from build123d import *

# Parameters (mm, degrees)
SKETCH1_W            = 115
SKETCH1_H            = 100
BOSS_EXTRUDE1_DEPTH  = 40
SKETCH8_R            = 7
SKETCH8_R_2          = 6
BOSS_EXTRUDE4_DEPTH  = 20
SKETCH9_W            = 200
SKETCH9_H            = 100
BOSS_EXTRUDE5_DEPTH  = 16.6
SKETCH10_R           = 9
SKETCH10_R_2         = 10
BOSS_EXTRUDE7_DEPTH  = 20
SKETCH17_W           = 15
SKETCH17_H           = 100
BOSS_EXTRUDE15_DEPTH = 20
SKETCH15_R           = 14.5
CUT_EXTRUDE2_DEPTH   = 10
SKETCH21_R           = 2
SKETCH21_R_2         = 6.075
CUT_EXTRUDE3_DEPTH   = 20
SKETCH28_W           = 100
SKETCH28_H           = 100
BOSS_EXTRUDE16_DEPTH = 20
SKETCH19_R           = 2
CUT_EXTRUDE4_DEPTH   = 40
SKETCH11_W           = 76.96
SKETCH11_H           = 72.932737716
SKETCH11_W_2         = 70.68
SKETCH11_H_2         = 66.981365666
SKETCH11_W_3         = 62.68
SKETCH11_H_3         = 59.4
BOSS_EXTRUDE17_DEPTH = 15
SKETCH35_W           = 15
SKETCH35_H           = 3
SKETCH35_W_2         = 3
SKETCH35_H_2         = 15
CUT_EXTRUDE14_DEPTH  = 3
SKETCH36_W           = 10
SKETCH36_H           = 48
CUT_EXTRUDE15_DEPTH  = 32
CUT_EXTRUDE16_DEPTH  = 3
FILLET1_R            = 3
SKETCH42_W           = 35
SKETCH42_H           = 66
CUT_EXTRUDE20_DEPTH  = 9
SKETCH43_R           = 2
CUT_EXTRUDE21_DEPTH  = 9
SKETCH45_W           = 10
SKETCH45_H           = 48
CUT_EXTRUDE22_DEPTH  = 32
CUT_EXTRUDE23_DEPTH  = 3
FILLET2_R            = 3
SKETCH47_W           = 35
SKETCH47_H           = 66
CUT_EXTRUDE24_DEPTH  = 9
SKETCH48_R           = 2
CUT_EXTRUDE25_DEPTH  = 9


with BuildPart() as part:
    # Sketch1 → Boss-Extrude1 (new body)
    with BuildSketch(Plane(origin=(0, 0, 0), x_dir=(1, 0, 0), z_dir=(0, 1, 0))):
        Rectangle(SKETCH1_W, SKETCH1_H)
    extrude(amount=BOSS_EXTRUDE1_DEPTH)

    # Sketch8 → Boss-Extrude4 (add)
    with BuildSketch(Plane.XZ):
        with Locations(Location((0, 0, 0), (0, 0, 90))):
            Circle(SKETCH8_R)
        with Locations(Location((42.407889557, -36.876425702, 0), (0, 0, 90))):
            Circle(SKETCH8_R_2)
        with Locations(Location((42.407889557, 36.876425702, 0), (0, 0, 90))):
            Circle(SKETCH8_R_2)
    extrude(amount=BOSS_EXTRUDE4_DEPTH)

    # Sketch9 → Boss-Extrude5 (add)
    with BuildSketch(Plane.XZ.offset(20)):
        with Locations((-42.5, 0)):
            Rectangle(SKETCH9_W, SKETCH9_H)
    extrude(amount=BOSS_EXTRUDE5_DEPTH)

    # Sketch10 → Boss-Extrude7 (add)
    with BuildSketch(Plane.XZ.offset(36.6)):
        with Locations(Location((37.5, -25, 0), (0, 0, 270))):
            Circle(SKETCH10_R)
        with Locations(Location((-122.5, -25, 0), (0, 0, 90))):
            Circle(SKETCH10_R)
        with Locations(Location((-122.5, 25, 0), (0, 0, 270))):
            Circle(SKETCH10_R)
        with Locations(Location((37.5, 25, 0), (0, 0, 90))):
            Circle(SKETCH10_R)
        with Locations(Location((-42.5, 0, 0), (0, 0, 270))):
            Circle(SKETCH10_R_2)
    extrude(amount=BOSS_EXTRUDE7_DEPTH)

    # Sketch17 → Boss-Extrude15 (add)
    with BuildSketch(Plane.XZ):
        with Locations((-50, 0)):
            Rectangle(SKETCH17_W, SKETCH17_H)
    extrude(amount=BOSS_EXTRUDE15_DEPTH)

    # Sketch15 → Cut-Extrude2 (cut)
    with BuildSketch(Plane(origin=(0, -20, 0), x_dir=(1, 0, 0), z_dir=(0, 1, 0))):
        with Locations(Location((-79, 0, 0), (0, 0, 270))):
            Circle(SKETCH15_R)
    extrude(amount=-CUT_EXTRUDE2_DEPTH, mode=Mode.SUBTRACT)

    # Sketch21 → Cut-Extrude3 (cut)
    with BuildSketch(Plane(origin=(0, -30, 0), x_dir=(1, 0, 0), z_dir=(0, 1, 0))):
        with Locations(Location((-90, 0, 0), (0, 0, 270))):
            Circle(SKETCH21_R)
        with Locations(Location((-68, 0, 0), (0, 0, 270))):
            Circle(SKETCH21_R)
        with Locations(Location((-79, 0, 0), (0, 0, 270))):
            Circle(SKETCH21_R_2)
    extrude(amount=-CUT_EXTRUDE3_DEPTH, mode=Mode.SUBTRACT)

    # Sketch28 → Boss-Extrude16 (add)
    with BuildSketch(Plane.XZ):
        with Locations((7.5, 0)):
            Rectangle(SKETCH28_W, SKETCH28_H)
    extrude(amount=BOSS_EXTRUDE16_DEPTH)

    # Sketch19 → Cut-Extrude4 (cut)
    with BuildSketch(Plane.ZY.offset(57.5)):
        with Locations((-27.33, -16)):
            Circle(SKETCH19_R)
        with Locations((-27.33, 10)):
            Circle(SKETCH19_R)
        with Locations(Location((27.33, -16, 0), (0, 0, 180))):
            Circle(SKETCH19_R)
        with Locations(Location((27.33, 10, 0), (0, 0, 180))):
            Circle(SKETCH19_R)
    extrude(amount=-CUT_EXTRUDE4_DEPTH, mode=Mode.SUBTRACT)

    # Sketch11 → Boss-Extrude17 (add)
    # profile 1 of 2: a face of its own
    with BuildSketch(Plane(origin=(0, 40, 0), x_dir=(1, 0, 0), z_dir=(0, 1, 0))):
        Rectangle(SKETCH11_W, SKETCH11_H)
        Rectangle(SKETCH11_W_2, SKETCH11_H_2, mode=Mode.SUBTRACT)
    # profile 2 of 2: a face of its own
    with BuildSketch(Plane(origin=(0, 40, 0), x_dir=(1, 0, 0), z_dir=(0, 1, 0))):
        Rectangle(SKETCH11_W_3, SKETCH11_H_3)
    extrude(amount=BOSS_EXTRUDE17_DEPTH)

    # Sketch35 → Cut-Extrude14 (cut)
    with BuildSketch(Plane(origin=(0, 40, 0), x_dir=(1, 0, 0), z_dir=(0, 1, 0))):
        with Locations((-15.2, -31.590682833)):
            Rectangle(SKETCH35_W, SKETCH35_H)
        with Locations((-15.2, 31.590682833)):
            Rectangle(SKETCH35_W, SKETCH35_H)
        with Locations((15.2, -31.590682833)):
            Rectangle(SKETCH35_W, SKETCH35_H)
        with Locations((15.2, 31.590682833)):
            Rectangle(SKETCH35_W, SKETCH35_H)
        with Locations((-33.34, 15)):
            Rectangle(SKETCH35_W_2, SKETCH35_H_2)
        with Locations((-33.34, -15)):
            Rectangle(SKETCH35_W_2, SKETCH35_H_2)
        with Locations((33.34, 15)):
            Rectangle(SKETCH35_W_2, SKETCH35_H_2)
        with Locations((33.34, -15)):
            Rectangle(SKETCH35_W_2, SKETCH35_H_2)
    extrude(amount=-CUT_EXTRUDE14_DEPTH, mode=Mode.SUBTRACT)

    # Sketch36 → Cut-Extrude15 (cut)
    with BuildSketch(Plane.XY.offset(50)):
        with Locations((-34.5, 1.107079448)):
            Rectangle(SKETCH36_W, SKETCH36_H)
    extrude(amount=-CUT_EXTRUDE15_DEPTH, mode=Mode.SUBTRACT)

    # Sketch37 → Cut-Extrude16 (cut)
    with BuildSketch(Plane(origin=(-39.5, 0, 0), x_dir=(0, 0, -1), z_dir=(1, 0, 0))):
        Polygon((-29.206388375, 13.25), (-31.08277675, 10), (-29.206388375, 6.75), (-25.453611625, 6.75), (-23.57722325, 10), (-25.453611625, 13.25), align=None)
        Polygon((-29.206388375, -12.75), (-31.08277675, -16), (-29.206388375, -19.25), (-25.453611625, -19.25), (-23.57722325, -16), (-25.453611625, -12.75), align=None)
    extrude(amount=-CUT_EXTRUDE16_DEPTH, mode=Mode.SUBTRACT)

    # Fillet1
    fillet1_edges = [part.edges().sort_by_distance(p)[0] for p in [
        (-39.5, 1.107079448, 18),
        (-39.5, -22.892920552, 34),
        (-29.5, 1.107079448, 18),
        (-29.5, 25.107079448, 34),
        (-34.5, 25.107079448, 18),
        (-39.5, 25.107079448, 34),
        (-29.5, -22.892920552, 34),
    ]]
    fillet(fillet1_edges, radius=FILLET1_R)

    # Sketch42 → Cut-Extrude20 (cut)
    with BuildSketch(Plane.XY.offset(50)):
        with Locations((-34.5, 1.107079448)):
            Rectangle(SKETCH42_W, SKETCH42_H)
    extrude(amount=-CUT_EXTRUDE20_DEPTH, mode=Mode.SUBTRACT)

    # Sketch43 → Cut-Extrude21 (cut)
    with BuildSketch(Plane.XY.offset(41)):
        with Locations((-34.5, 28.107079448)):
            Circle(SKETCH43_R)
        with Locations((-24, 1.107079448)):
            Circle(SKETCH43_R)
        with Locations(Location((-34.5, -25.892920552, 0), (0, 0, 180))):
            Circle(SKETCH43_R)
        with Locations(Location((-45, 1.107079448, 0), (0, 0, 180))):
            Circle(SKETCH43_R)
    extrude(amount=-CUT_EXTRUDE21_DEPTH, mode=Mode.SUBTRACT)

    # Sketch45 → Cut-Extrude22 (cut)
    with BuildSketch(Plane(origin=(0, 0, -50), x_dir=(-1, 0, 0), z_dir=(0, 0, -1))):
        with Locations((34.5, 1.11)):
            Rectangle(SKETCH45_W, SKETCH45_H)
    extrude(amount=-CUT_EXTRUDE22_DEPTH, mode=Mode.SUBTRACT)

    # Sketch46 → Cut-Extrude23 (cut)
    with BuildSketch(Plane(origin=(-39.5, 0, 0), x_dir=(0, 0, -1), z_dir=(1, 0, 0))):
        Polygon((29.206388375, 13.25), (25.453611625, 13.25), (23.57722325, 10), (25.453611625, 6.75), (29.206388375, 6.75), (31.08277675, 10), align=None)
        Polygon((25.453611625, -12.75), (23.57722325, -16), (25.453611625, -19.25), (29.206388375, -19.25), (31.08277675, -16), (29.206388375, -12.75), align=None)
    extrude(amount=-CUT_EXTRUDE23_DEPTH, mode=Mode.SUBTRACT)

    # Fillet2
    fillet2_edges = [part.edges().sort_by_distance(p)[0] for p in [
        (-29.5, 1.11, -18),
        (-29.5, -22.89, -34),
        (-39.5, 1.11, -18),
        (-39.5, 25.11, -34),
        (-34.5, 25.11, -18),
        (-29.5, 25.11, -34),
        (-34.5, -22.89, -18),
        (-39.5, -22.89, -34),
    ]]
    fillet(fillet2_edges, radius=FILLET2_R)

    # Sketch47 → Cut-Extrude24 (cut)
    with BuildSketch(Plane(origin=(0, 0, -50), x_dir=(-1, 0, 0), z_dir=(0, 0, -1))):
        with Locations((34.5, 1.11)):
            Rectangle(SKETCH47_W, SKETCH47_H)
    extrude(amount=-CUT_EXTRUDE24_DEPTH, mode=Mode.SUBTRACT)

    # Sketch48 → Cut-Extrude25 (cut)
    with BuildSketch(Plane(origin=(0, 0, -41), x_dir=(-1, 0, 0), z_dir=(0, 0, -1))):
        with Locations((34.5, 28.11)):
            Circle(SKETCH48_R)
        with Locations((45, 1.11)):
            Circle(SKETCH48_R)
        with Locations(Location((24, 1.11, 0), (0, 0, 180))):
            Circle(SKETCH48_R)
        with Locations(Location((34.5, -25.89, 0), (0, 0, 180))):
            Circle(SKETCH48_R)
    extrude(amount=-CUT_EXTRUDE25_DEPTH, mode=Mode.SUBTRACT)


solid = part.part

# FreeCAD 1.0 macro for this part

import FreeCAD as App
import Part
import Sketcher
Q = App.Units.Quantity


def edges_at(feature, points):
    """Names of the edges that pass closest to the given points."""
    edges = feature.Shape.Edges
    near = lambda p: min(range(len(edges)), key=lambda i: edges[i].distToShape(Part.Vertex(*p))[0])
    return sorted({f"Edge{near(p) + 1}" for p in points})


def add_polygon(sketch, points):
    """Adds a closed chain of lines whose ends are joined by coincident constraints."""
    first, n = sketch.GeometryCount, len(points)
    for a, b in zip(points, points[1:] + points[:1]):
        sketch.addGeometry(Part.LineSegment(App.Vector(*a, 0), App.Vector(*b, 0)), False)
    for i in range(n):
        sketch.addConstraint(Sketcher.Constraint("Coincident", first + i, 2, first + (i + 1) % n, 1))

doc = App.newDocument("Part")
params = doc.addObject("Spreadsheet::Sheet", "Params")
for row, (alias, value) in enumerate([
    ("sketch1_width", "115 mm"),
    ("sketch1_height", "100 mm"),
    ("pad1_length", "40 mm"),
    ("sketch2_diameter", "14 mm"),
    ("sketch2_diameter2", "12 mm"),
    ("pad2_length", "20 mm"),
    ("sketch3_width", "200 mm"),
    ("sketch3_height", "100 mm"),
    ("pad3_length", "16.6 mm"),
    ("sketch4_diameter", "18 mm"),
    ("sketch4_diameter2", "20 mm"),
    ("pad4_length", "20 mm"),
    ("sketch5_width", "15 mm"),
    ("sketch5_height", "100 mm"),
    ("pad5_length", "20 mm"),
    ("sketch6_diameter", "29 mm"),
    ("pocket1_length", "10 mm"),
    ("sketch7_diameter", "4 mm"),
    ("sketch7_diameter2", "12.15 mm"),
    ("pocket2_length", "20 mm"),
    ("sketch8_width", "100 mm"),
    ("pad6_length", "20 mm"),
    ("sketch9_diameter", "4 mm"),
    ("pocket3_length", "40 mm"),
    ("sketch10_height", "59.4 mm"),
    ("sketch10_width", "76.96 mm"),
    ("sketch10_width2", "70.68 mm"),
    ("pad7_length", "15 mm"),
    ("sketch11_width", "15 mm"),
    ("sketch11_width2", "3 mm"),
    ("pocket4_length", "3 mm"),
    ("sketch12_width", "10 mm"),
    ("sketch12_height", "48 mm"),
    ("pocket5_length", "32 mm"),
    ("pocket6_length", "3 mm"),
    ("fillet_radius", "3 mm"),
    ("sketch14_width", "35 mm"),
    ("sketch14_height", "66 mm"),
    ("pocket7_length", "9 mm"),
    ("sketch15_diameter", "4 mm"),
    ("pocket8_length", "9 mm"),
    ("sketch16_width", "10 mm"),
    ("sketch16_height", "48 mm"),
    ("pocket9_length", "32 mm"),
    ("pocket10_length", "3 mm"),
    ("fillet2_radius", "3 mm"),
    ("sketch18_width", "35 mm"),
    ("sketch18_height", "66 mm"),
    ("pocket11_length", "9 mm"),
    ("sketch19_diameter", "4 mm"),
    ("pocket12_length", "9 mm"),
], start=1):
    params.set(f"A{row}", alias)
    params.set(f"B{row}", "=" + value)
    params.setAlias(f"B{row}", alias)

body = doc.addObject("PartDesign::Body", "Body")

# Sketch on XZ plane
sketch1 = doc.addObject("Sketcher::SketchObject", "Sketch")
body.addObject(sketch1)
sketch1.AttachmentSupport = (doc.XZ_Plane, [""])
sketch1.MapMode = "FlatFace"
add_polygon(sketch1, [(-58, -50), (-58, 50), (58, 50), (58, -50)])  # lines 0-3
sketch1.addConstraint([
    Sketcher.Constraint("Vertical", 0),
    Sketcher.Constraint("Horizontal", 1),
    Sketcher.Constraint("Vertical", 2),
    Sketcher.Constraint("Horizontal", 3),
    Sketcher.Constraint("Symmetric", 0, 2, 2, 2, -1, 1),
    Sketcher.Constraint("DistanceX", 1, 1, 1, 2, 115.0),
    Sketcher.Constraint("DistanceY", 0, 1, 0, 2, 100.0),
])
sketch1.setExpression("Constraints[9]", "Params.sketch1_width")
sketch1.setExpression("Constraints[10]", "Params.sketch1_height")
pad1 = doc.addObject("PartDesign::Pad", "Pad")
body.addObject(pad1)
pad1.Profile = sketch1
pad1.setExpression("Length", "Params.pad1_length")
pad1.Reversed = True

# Sketch on XZ plane
sketch2 = doc.addObject("Sketcher::SketchObject", "Sketch001")
body.addObject(sketch2)
sketch2.AttachmentSupport = (doc.XZ_Plane, [""])
sketch2.MapMode = "FlatFace"
sketch2.addGeometry([
    Part.Circle(App.Vector(0, 0, 0), App.Vector(0, 0, 1), 7),
    Part.Circle(App.Vector(42, -37, 0), App.Vector(0, 0, 1), 6),
    Part.Circle(App.Vector(42, 37, 0), App.Vector(0, 0, 1), 6),
], False)
sketch2.addConstraint([
    Sketcher.Constraint("Coincident", 0, 3, -1, 1),
    Sketcher.Constraint("Equal", 1, 2),
    Sketcher.Constraint("Symmetric", 1, 3, 2, 3, -1),
    Sketcher.Constraint("Diameter", 0, 14.0),
    Sketcher.Constraint("Diameter", 1, 12.0),
    Sketcher.Constraint("DistanceX", -1, 1, 1, 3, 42.40789),
    Sketcher.Constraint("DistanceY", 1, 3, 2, 3, 73.752851),
])
sketch2.setExpression("Constraints[3]", "Params.sketch2_diameter")
sketch2.setExpression("Constraints[4]", "Params.sketch2_diameter2")
pad2 = doc.addObject("PartDesign::Pad", "Pad001")
body.addObject(pad2)
pad2.Profile = sketch2
pad2.setExpression("Length", "Params.pad2_length")

# Sketch on XZ plane
sketch3 = doc.addObject("Sketcher::SketchObject", "Sketch002")
body.addObject(sketch3)
sketch3.AttachmentSupport = (doc.XZ_Plane, [""])
sketch3.MapMode = "FlatFace"
sketch3.AttachmentOffset = App.Placement(App.Vector(0, 0, 20), App.Rotation())
add_polygon(sketch3, [(-142, 50), (-142, -50), (58, -50), (58, 50)])  # lines 0-3
sketch3.addConstraint([
    Sketcher.Constraint("Vertical", 0),
    Sketcher.Constraint("Horizontal", 1),
    Sketcher.Constraint("Vertical", 2),
    Sketcher.Constraint("Horizontal", 3),
    Sketcher.Constraint("DistanceX", 1, 1, 1, 2, 200.0),
    Sketcher.Constraint("DistanceY", 0, 2, 0, 1, 100.0),
    Sketcher.Constraint("DistanceY", 0, 2, -1, 1, 50.0),
    Sketcher.Constraint("DistanceX", 0, 2, -1, 1, 142.5),
])
sketch3.setExpression("Constraints[8]", "Params.sketch3_width")
sketch3.setExpression("Constraints[9]", "Params.sketch3_height")
pad3 = doc.addObject("PartDesign::Pad", "Pad002")
body.addObject(pad3)
pad3.Profile = sketch3
pad3.setExpression("Length", "Params.pad3_length")

# Sketch on XZ plane
sketch4 = doc.addObject("Sketcher::SketchObject", "Sketch003")
body.addObject(sketch4)
sketch4.AttachmentSupport = (doc.XZ_Plane, [""])
sketch4.MapMode = "FlatFace"
sketch4.AttachmentOffset = App.Placement(App.Vector(0, 0, 36.6), App.Rotation())
sketch4.addGeometry([
    Part.Circle(App.Vector(38, -25, 0), App.Vector(0, 0, 1), 9),  # 0
    Part.Circle(App.Vector(-122, -25, 0), App.Vector(0, 0, 1), 9),  # 1
    Part.Circle(App.Vector(-122, 25, 0), App.Vector(0, 0, 1), 9),  # 2
    Part.Circle(App.Vector(38, 25, 0), App.Vector(0, 0, 1), 9),  # 3
    Part.Circle(App.Vector(-42, 0, 0), App.Vector(0, 0, 1), 10),  # 4
], False)
sketch4.addConstraint([
    Sketcher.Constraint("Equal", 0, 1),
    Sketcher.Constraint("Equal", 1, 2),
    Sketcher.Constraint("Equal", 2, 3),
    Sketcher.Constraint("Symmetric", 1, 3, 2, 3, -1),
    Sketcher.Constraint("Symmetric", 0, 3, 3, 3, -1),
    Sketcher.Constraint("PointOnObject", 4, 3, -1),
    Sketcher.Constraint("Horizontal", 0, 3, 1, 3),
    Sketcher.Constraint("Diameter", 0, 18.0),
    Sketcher.Constraint("Diameter", 4, 20.0),
    Sketcher.Constraint("DistanceY", 0, 3, -1, 1, 25.0),
    Sketcher.Constraint("DistanceX", 1, 3, 0, 3, 160.0),
    Sketcher.Constraint("DistanceX", 4, 3, 0, 3, 80.0),
    Sketcher.Constraint("DistanceX", -1, 1, 0, 3, 37.5),
])
sketch4.setExpression("Constraints[7]", "Params.sketch4_diameter")
sketch4.setExpression("Constraints[8]", "Params.sketch4_diameter2")
pad4 = doc.addObject("PartDesign::Pad", "Pad003")
body.addObject(pad4)
pad4.Profile = sketch4
pad4.setExpression("Length", "Params.pad4_length")

# Sketch on XZ plane
sketch5 = doc.addObject("Sketcher::SketchObject", "Sketch004")
body.addObject(sketch5)
sketch5.AttachmentSupport = (doc.XZ_Plane, [""])
sketch5.MapMode = "FlatFace"
add_polygon(sketch5, [(-58, 50), (-58, -50), (-42, -50), (-42, 50)])  # lines 0-3
sketch5.addConstraint([
    Sketcher.Constraint("Vertical", 0),
    Sketcher.Constraint("Horizontal", 1),
    Sketcher.Constraint("Vertical", 2),
    Sketcher.Constraint("Horizontal", 3),
    Sketcher.Constraint("DistanceX", 1, 1, 1, 2, 15.0),
    Sketcher.Constraint("DistanceY", 0, 2, 0, 1, 100.0),
    Sketcher.Constraint("DistanceY", 0, 2, -1, 1, 50.0),
    Sketcher.Constraint("DistanceX", 0, 2, -1, 1, 57.5),
])
sketch5.setExpression("Constraints[8]", "Params.sketch5_width")
sketch5.setExpression("Constraints[9]", "Params.sketch5_height")
pad5 = doc.addObject("PartDesign::Pad", "Pad004")
body.addObject(pad5)
pad5.Profile = sketch5
pad5.setExpression("Length", "Params.pad5_length")

# Sketch on XZ plane
sketch6 = doc.addObject("Sketcher::SketchObject", "Sketch005")
body.addObject(sketch6)
sketch6.AttachmentSupport = (doc.XZ_Plane, [""])
sketch6.MapMode = "FlatFace"
sketch6.AttachmentOffset = App.Placement(App.Vector(0, 0, 20), App.Rotation())
sketch6.addGeometry(Part.Circle(App.Vector(-79, 0, 0), App.Vector(0, 0, 1), 14), False)
sketch6.addConstraint([
    Sketcher.Constraint("PointOnObject", 0, 3, -1),
    Sketcher.Constraint("Diameter", 0, 29.0),
    Sketcher.Constraint("DistanceX", 0, 3, -1, 1, 79.0),
])
sketch6.setExpression("Constraints[1]", "Params.sketch6_diameter")
pocket1 = doc.addObject("PartDesign::Pocket", "Pocket")
body.addObject(pocket1)
pocket1.Profile = sketch6
pocket1.setExpression("Length", "Params.pocket1_length")
pocket1.Reversed = True

# Sketch on XZ plane
sketch7 = doc.addObject("Sketcher::SketchObject", "Sketch006")
body.addObject(sketch7)
sketch7.AttachmentSupport = (doc.XZ_Plane, [""])
sketch7.MapMode = "FlatFace"
sketch7.AttachmentOffset = App.Placement(App.Vector(0, 0, 30), App.Rotation())
sketch7.addGeometry([
    Part.Circle(App.Vector(-90, 0, 0), App.Vector(0, 0, 1), 2),
    Part.Circle(App.Vector(-68, 0, 0), App.Vector(0, 0, 1), 2),
    Part.Circle(App.Vector(-79, 0, 0), App.Vector(0, 0, 1), 6.1),
], False)
sketch7.addConstraint([
    Sketcher.Constraint("Equal", 0, 1),
    Sketcher.Constraint("PointOnObject", 0, 3, -1),
    Sketcher.Constraint("PointOnObject", 1, 3, -1),
    Sketcher.Constraint("PointOnObject", 2, 3, -1),
    Sketcher.Constraint("Diameter", 0, 4.0),
    Sketcher.Constraint("Diameter", 2, 12.15),
    Sketcher.Constraint("DistanceX", 0, 3, -1, 1, 90.0),
    Sketcher.Constraint("DistanceX", 1, 3, -1, 1, 68.0),
    Sketcher.Constraint("DistanceX", 2, 3, -1, 1, 79.0),
])
sketch7.setExpression("Constraints[4]", "Params.sketch7_diameter")
sketch7.setExpression("Constraints[5]", "Params.sketch7_diameter2")
pocket2 = doc.addObject("PartDesign::Pocket", "Pocket001")
body.addObject(pocket2)
pocket2.Profile = sketch7
pocket2.setExpression("Length", "Params.pocket2_length")
pocket2.Reversed = True

# Sketch on XZ plane
sketch8 = doc.addObject("Sketcher::SketchObject", "Sketch007")
body.addObject(sketch8)
sketch8.AttachmentSupport = (doc.XZ_Plane, [""])
sketch8.MapMode = "FlatFace"
add_polygon(sketch8, [(-42, 50), (-42, -50), (58, -50), (58, 50)])  # lines 0-3
sketch8.addConstraint([
    Sketcher.Constraint("Vertical", 0),
    Sketcher.Constraint("Horizontal", 1),
    Sketcher.Constraint("Vertical", 2),
    Sketcher.Constraint("Horizontal", 3),
    Sketcher.Constraint("Equal", 3, 0),
    Sketcher.Constraint("DistanceX", 1, 1, 1, 2, 100.0),
    Sketcher.Constraint("DistanceY", 0, 2, -1, 1, 50.0),
    Sketcher.Constraint("DistanceX", 0, 2, -1, 1, 42.5),
])
sketch8.setExpression("Constraints[9]", "Params.sketch8_width")
pad6 = doc.addObject("PartDesign::Pad", "Pad005")
body.addObject(pad6)
pad6.Profile = sketch8
pad6.setExpression("Length", "Params.pad6_length")

# Sketch on YZ plane
sketch9 = doc.addObject("Sketcher::SketchObject", "Sketch008")
body.addObject(sketch9)
sketch9.AttachmentSupport = (doc.YZ_Plane, [""])
sketch9.MapMode = "FlatFace"
sketch9.AttachmentOffset = App.Placement(App.Vector(0, 0, -57.5), App.Rotation())
sketch9.addGeometry([
    Part.Circle(App.Vector(-16, -27.3, 0), App.Vector(0, 0, 1), 2),
    Part.Circle(App.Vector(10, -27.3, 0), App.Vector(0, 0, 1), 2),
    Part.Circle(App.Vector(-16, 27.3, 0), App.Vector(0, 0, 1), 2),
    Part.Circle(App.Vector(10, 27.3, 0), App.Vector(0, 0, 1), 2),
], False)
sketch9.addConstraint([
    Sketcher.Constraint("Equal", 0, 1),
    Sketcher.Constraint("Equal", 1, 2),
    Sketcher.Constraint("Equal", 2, 3),
    Sketcher.Constraint("Symmetric", 0, 3, 2, 3, -1),
    Sketcher.Constraint("Symmetric", 1, 3, 3, 3, -1),
    Sketcher.Constraint("Horizontal", 0, 3, 1, 3),
    Sketcher.Constraint("Diameter", 0, 4.0),
    Sketcher.Constraint("DistanceX", 0, 3, -1, 1, 16.0),
    Sketcher.Constraint("DistanceX", -1, 1, 1, 3, 10.0),
    Sketcher.Constraint("DistanceY", 0, 3, -1, 1, 27.33),
])
sketch9.setExpression("Constraints[6]", "Params.sketch9_diameter")
pocket3 = doc.addObject("PartDesign::Pocket", "Pocket002")
body.addObject(pocket3)
pocket3.Profile = sketch9
pocket3.setExpression("Length", "Params.pocket3_length")
pocket3.Reversed = True

# Sketch on XZ plane
sketch10 = doc.addObject("Sketcher::SketchObject", "Sketch009")
body.addObject(sketch10)
sketch10.AttachmentSupport = (doc.XZ_Plane, [""])
sketch10.MapMode = "FlatFace"
sketch10.AttachmentOffset = App.Placement(App.Vector(0, 0, -40), App.Rotation())
add_polygon(sketch10, [(-38, -36), (-38, 36), (38, 36), (38, -36)])  # lines 0-3
add_polygon(sketch10, [(35, 33), (-35, 33), (-35, -33), (35, -33)])  # lines 4-7
add_polygon(sketch10, [(-31, -30), (-31, 30), (31, 30), (31, -30)])  # lines 8-11
sketch10.addConstraint([
    Sketcher.Constraint("Vertical", 0),
    Sketcher.Constraint("Horizontal", 1),
    Sketcher.Constraint("Vertical", 2),
    Sketcher.Constraint("Horizontal", 3),
    Sketcher.Constraint("Horizontal", 4),
    Sketcher.Constraint("Vertical", 5),
    Sketcher.Constraint("Horizontal", 6),
    Sketcher.Constraint("Vertical", 7),
    Sketcher.Constraint("Vertical", 8),
    Sketcher.Constraint("Horizontal", 9),
    Sketcher.Constraint("Vertical", 10),
    Sketcher.Constraint("Horizontal", 11),
    Sketcher.Constraint("Symmetric", 0, 2, 2, 2, -1, 1),
    Sketcher.Constraint("Symmetric", 4, 2, 6, 2, -1, 1),
    Sketcher.Constraint("Symmetric", 8, 2, 10, 2, -1, 1),
    Sketcher.Constraint("DistanceY", 8, 1, 8, 2, 59.4),
    Sketcher.Constraint("DistanceX", 4, 2, 8, 2, 4.0),
    Sketcher.Constraint("DistanceX", 1, 1, 1, 2, 76.96),
    Sketcher.Constraint("DistanceX", 4, 2, 4, 1, 70.68),
    Sketcher.Constraint("DistanceY", 0, 1, 0, 2, 72.932738),
    Sketcher.Constraint("DistanceY", 5, 2, 5, 1, 66.981366),
])
sketch10.setExpression("Constraints[27]", "Params.sketch10_height")
sketch10.setExpression("Constraints[29]", "Params.sketch10_width")
sketch10.setExpression("Constraints[30]", "Params.sketch10_width2")
pad7 = doc.addObject("PartDesign::Pad", "Pad006")
body.addObject(pad7)
pad7.Profile = sketch10
pad7.setExpression("Length", "Params.pad7_length")
pad7.Reversed = True

# Sketch on XZ plane
sketch11 = doc.addObject("Sketcher::SketchObject", "Sketch010")
body.addObject(sketch11)
sketch11.AttachmentSupport = (doc.XZ_Plane, [""])
sketch11.MapMode = "FlatFace"
sketch11.AttachmentOffset = App.Placement(App.Vector(0, 0, -40), App.Rotation())
add_polygon(sketch11, [(-22.7, 30.1), (-22.7, 33.1), (-7.7, 33.1), (-7.7, 30.1)])  # lines 0-3
add_polygon(sketch11, [(-22.7, -33.1), (-22.7, -30.1), (-7.7, -30.1), (-7.7, -33.1)])  # lines 4-7
add_polygon(sketch11, [(7.7, 30.1), (7.7, 33.1), (22.7, 33.1), (22.7, 30.1)])  # lines 8-11
add_polygon(sketch11, [(7.7, -33.1), (7.7, -30.1), (22.7, -30.1), (22.7, -33.1)])  # lines 12-15
add_polygon(sketch11, [(-34.8, -22.5), (-34.8, -7.5), (-31.8, -7.5), (-31.8, -22.5)])  # lines 16-19
add_polygon(sketch11, [(-34.8, 7.5), (-34.8, 22.5), (-31.8, 22.5), (-31.8, 7.5)])  # lines 20-23
add_polygon(sketch11, [(31.8, -22.5), (31.8, -7.5), (34.8, -7.5), (34.8, -22.5)])  # lines 24-27
add_polygon(sketch11, [(31.8, 7.5), (31.8, 22.5), (34.8, 22.5), (34.8, 7.5)])  # lines 28-31
sketch11.addConstraint([
    Sketcher.Constraint("Vertical", 0),
    Sketcher.Constraint("Horizontal", 1),
    Sketcher.Constraint("Vertical", 2),
    Sketcher.Constraint("Horizontal", 3),
    Sketcher.Constraint("Vertical", 4),
    Sketcher.Constraint("Horizontal", 5),
    Sketcher.Constraint("Vertical", 6),
    Sketcher.Constraint("Horizontal", 7),
    Sketcher.Constraint("Vertical", 8),
    Sketcher.Constraint("Horizontal", 9),
    Sketcher.Constraint("Vertical", 10),
    Sketcher.Constraint("Horizontal", 11),
    Sketcher.Constraint("Vertical", 12),
    Sketcher.Constraint("Horizontal", 13),
    Sketcher.Constraint("Vertical", 14),
    Sketcher.Constraint("Horizontal", 15),
    Sketcher.Constraint("Vertical", 16),
    Sketcher.Constraint("Horizontal", 17),
    Sketcher.Constraint("Vertical", 18),
    Sketcher.Constraint("Horizontal", 19),
    Sketcher.Constraint("Vertical", 20),
    Sketcher.Constraint("Horizontal", 21),
    Sketcher.Constraint("Vertical", 22),
    Sketcher.Constraint("Horizontal", 23),
    Sketcher.Constraint("Vertical", 24),
    Sketcher.Constraint("Horizontal", 25),
    Sketcher.Constraint("Vertical", 26),
    Sketcher.Constraint("Horizontal", 27),
    Sketcher.Constraint("Vertical", 28),
    Sketcher.Constraint("Horizontal", 29),
    Sketcher.Constraint("Vertical", 30),
    Sketcher.Constraint("Horizontal", 31),
    Sketcher.Constraint("Symmetric", 6, 2, 8, 2, -1, 1),
    Sketcher.Constraint("Symmetric", 4, 2, 10, 2, -1, 1),
    Sketcher.Constraint("Symmetric", 2, 2, 12, 2, -1, 1),
    Sketcher.Constraint("Symmetric", 0, 2, 14, 2, -1, 1),
    Sketcher.Constraint("Symmetric", 22, 2, 24, 2, -1, 1),
    Sketcher.Constraint("Symmetric", 20, 2, 26, 2, -1, 1),
    Sketcher.Constraint("Symmetric", 18, 2, 28, 2, -1, 1),
    Sketcher.Constraint("Symmetric", 16, 2, 30, 2, -1, 1),
    Sketcher.Constraint("Symmetric", 1, 2, 8, 2, -2),
    Sketcher.Constraint("Symmetric", 3, 2, 10, 2, -2),
    Sketcher.Constraint("Symmetric", 17, 2, 24, 2, -2),
    Sketcher.Constraint("Symmetric", 19, 2, 26, 2, -2),
    Sketcher.Constraint("Equal", 31, 0),
    Sketcher.Constraint("Equal", 15, 16),
    Sketcher.Constraint("DistanceX", 1, 1, 1, 2, 15.0),
    Sketcher.Constraint("DistanceX", 17, 1, 17, 2, 3.0),
    Sketcher.Constraint("DistanceY", 16, 2, 20, 2, 30.0),
    Sketcher.Constraint("DistanceX", 0, 2, -1, 1, 22.7),
    Sketcher.Constraint("DistanceX", 16, 2, -1, 1, 34.84),
    Sketcher.Constraint("DistanceY", -1, 1, 0, 2, 33.090683),
])
sketch11.setExpression("Constraints[78]", "Params.sketch11_width")
sketch11.setExpression("Constraints[79]", "Params.sketch11_width2")
pocket4 = doc.addObject("PartDesign::Pocket", "Pocket003")
body.addObject(pocket4)
pocket4.Profile = sketch11
pocket4.setExpression("Length", "Params.pocket4_length")
pocket4.Reversed = True

# Sketch on XY plane
sketch12 = doc.addObject("Sketcher::SketchObject", "Sketch011")
body.addObject(sketch12)
sketch12.AttachmentSupport = (doc.XY_Plane, [""])
sketch12.MapMode = "FlatFace"
sketch12.AttachmentOffset = App.Placement(App.Vector(0, 0, 50), App.Rotation())
add_polygon(sketch12, [(-40, 25), (-40, -23), (-30, -23), (-30, 25)])  # lines 0-3
sketch12.addConstraint([
    Sketcher.Constraint("Vertical", 0),
    Sketcher.Constraint("Horizontal", 1),
    Sketcher.Constraint("Vertical", 2),
    Sketcher.Constraint("Horizontal", 3),
    Sketcher.Constraint("DistanceX", 1, 1, 1, 2, 10.0),
    Sketcher.Constraint("DistanceY", 0, 2, 0, 1, 48.0),
    Sketcher.Constraint("DistanceX", 0, 2, -1, 1, 39.5),
    Sketcher.Constraint("DistanceY", 0, 2, -1, 1, 22.892921),
])
sketch12.setExpression("Constraints[8]", "Params.sketch12_width")
sketch12.setExpression("Constraints[9]", "Params.sketch12_height")
pocket5 = doc.addObject("PartDesign::Pocket", "Pocket004")
body.addObject(pocket5)
pocket5.Profile = sketch12
pocket5.setExpression("Length", "Params.pocket5_length")

# Sketch on YZ plane
sketch13 = doc.addObject("Sketcher::SketchObject", "Sketch012")
body.addObject(sketch13)
sketch13.AttachmentSupport = (doc.YZ_Plane, [""])
sketch13.MapMode = "FlatFace"
sketch13.AttachmentOffset = App.Placement(App.Vector(0, 0, -39.5), App.Rotation())
add_polygon(sketch13, [(13.2, 29.2), (10, 31.1), (6.8, 29.2), (6.8, 25.5), (10, 23.6), (13.2, 25.5)])  # lines 0-5
add_polygon(sketch13, [(-12.8, 29.2), (-16, 31.1), (-19.2, 29.2), (-19.2, 25.5), (-16, 23.6), (-12.8, 25.5)])  # lines 6-11
sketch13.addConstraint([
    Sketcher.Constraint("Vertical", 2),
    Sketcher.Constraint("Vertical", 5),
    Sketcher.Constraint("Vertical", 8),
    Sketcher.Constraint("Vertical", 11),
    Sketcher.Constraint("Parallel", 0, 3),
    Sketcher.Constraint("Parallel", 1, 4),
    Sketcher.Constraint("Parallel", 3, 6),
    Sketcher.Constraint("Parallel", 4, 7),
    Sketcher.Constraint("Parallel", 6, 9),
    Sketcher.Constraint("Parallel", 7, 10),
    Sketcher.Constraint("Horizontal", 2, 2, 4, 2),
    Sketcher.Constraint("Horizontal", 1, 2, 5, 2),
    Sketcher.Constraint("Horizontal", 0, 2, 6, 2),
    Sketcher.Constraint("Horizontal", 5, 2, 7, 2),
    Sketcher.Constraint("Horizontal", 4, 2, 8, 2),
    Sketcher.Constraint("Horizontal", 3, 2, 9, 2),
    Sketcher.Constraint("Horizontal", 8, 2, 10, 2),
    Sketcher.Constraint("Vertical", 0, 2, 3, 2),
    Sketcher.Constraint("Angle", 0, Q("150 deg")),
    Sketcher.Constraint("DistanceX", -1, 1, 0, 2, 10.0),
    Sketcher.Constraint("DistanceX", 6, 2, -1, 1, 16.0),
    Sketcher.Constraint("DistanceX", 2, 2, 4, 2, 6.5),
    Sketcher.Constraint("DistanceY", 2, 2, 2, 1, 3.752777),
    Sketcher.Constraint("DistanceY", -1, 1, 1, 2, 29.206388),
])
pocket6 = doc.addObject("PartDesign::Pocket", "Pocket005")
body.addObject(pocket6)
pocket6.Profile = sketch13
pocket6.setExpression("Length", "Params.pocket6_length")
doc.recompute()

fillet = doc.addObject("PartDesign::Fillet", "Fillet")
body.addObject(fillet)
fillet.Base = (pocket6, edges_at(pocket6, [
    (-39.5, 1.107, 18),
    (-39.5, -22.893, 34),
    (-29.5, 1.107, 18),
    (-29.5, 25.107, 34),
    (-34.5, 25.107, 18),
    (-39.5, 25.107, 34),
    (-29.5, -22.893, 34),
]))
fillet.setExpression("Radius", "Params.fillet_radius")

# Sketch on XY plane
sketch14 = doc.addObject("Sketcher::SketchObject", "Sketch013")
body.addObject(sketch14)
sketch14.AttachmentSupport = (doc.XY_Plane, [""])
sketch14.MapMode = "FlatFace"
sketch14.AttachmentOffset = App.Placement(App.Vector(0, 0, 50), App.Rotation())
add_polygon(sketch14, [(-52, 34), (-52, -32), (-17, -32), (-17, 34)])  # lines 0-3
sketch14.addConstraint([
    Sketcher.Constraint("Vertical", 0),
    Sketcher.Constraint("Horizontal", 1),
    Sketcher.Constraint("Vertical", 2),
    Sketcher.Constraint("Horizontal", 3),
    Sketcher.Constraint("DistanceX", 1, 1, 1, 2, 35.0),
    Sketcher.Constraint("DistanceY", 0, 2, 0, 1, 66.0),
    Sketcher.Constraint("DistanceX", 0, 2, -1, 1, 52.0),
    Sketcher.Constraint("DistanceY", 0, 2, -1, 1, 31.892921),
])
sketch14.setExpression("Constraints[8]", "Params.sketch14_width")
sketch14.setExpression("Constraints[9]", "Params.sketch14_height")
pocket7 = doc.addObject("PartDesign::Pocket", "Pocket006")
body.addObject(pocket7)
pocket7.Profile = sketch14
pocket7.setExpression("Length", "Params.pocket7_length")

# Sketch on XY plane
sketch15 = doc.addObject("Sketcher::SketchObject", "Sketch014")
body.addObject(sketch15)
sketch15.AttachmentSupport = (doc.XY_Plane, [""])
sketch15.MapMode = "FlatFace"
sketch15.AttachmentOffset = App.Placement(App.Vector(0, 0, 41), App.Rotation())
sketch15.addGeometry([
    Part.Circle(App.Vector(-34.5, 28.1, 0), App.Vector(0, 0, 1), 2),
    Part.Circle(App.Vector(-24, 1.1, 0), App.Vector(0, 0, 1), 2),
    Part.Circle(App.Vector(-34.5, -25.9, 0), App.Vector(0, 0, 1), 2),
    Part.Circle(App.Vector(-45, 1.1, 0), App.Vector(0, 0, 1), 2),
], False)
sketch15.addConstraint([
    Sketcher.Constraint("Equal", 0, 1),
    Sketcher.Constraint("Equal", 1, 2),
    Sketcher.Constraint("Equal", 2, 3),
    Sketcher.Constraint("Horizontal", 1, 3, 3, 3),
    Sketcher.Constraint("Vertical", 0, 3, 2, 3),
    Sketcher.Constraint("Diameter", 0, 4.0),
    Sketcher.Constraint("DistanceX", 1, 3, -1, 1, 24.0),
    Sketcher.Constraint("DistanceX", 3, 3, -1, 1, 45.0),
    Sketcher.Constraint("DistanceY", 1, 3, 0, 3, 27.0),
    Sketcher.Constraint("DistanceY", 2, 3, 1, 3, 27.0),
    Sketcher.Constraint("DistanceX", 0, 3, -1, 1, 34.5),
    Sketcher.Constraint("DistanceY", -1, 1, 0, 3, 28.107079),
])
sketch15.setExpression("Constraints[5]", "Params.sketch15_diameter")
pocket8 = doc.addObject("PartDesign::Pocket", "Pocket007")
body.addObject(pocket8)
pocket8.Profile = sketch15
pocket8.setExpression("Length", "Params.pocket8_length")

# Sketch on XY plane
sketch16 = doc.addObject("Sketcher::SketchObject", "Sketch015")
body.addObject(sketch16)
sketch16.AttachmentSupport = (doc.XY_Plane, [""])
sketch16.MapMode = "FlatFace"
sketch16.AttachmentOffset = App.Placement(App.Vector(0, 0, -50), App.Rotation())
add_polygon(sketch16, [(-30, 25), (-30, -23), (-40, -23), (-40, 25)])  # lines 0-3
sketch16.addConstraint([
    Sketcher.Constraint("Vertical", 0),
    Sketcher.Constraint("Horizontal", 1),
    Sketcher.Constraint("Vertical", 2),
    Sketcher.Constraint("Horizontal", 3),
    Sketcher.Constraint("DistanceX", 1, 2, 1, 1, 10.0),
    Sketcher.Constraint("DistanceY", 0, 2, 0, 1, 48.0),
    Sketcher.Constraint("DistanceX", 0, 2, -1, 1, 29.5),
    Sketcher.Constraint("DistanceY", 0, 2, -1, 1, 22.89),
])
sketch16.setExpression("Constraints[8]", "Params.sketch16_width")
sketch16.setExpression("Constraints[9]", "Params.sketch16_height")
pocket9 = doc.addObject("PartDesign::Pocket", "Pocket008")
body.addObject(pocket9)
pocket9.Profile = sketch16
pocket9.setExpression("Length", "Params.pocket9_length")
pocket9.Reversed = True

# Sketch on YZ plane
sketch17 = doc.addObject("Sketcher::SketchObject", "Sketch016")
body.addObject(sketch17)
sketch17.AttachmentSupport = (doc.YZ_Plane, [""])
sketch17.MapMode = "FlatFace"
sketch17.AttachmentOffset = App.Placement(App.Vector(0, 0, -39.5), App.Rotation())
add_polygon(sketch17, [(13.2, -29.2), (13.2, -25.5), (10, -23.6), (6.8, -25.5), (6.8, -29.2), (10, -31.1)])  # lines 0-5
add_polygon(sketch17, [(-12.8, -25.5), (-16, -23.6), (-19.2, -25.5), (-19.2, -29.2), (-16, -31.1), (-12.8, -29.2)])  # lines 6-11
sketch17.addConstraint([
    Sketcher.Constraint("Vertical", 0),
    Sketcher.Constraint("Vertical", 3),
    Sketcher.Constraint("Vertical", 8),
    Sketcher.Constraint("Vertical", 11),
    Sketcher.Constraint("Parallel", 1, 4),
    Sketcher.Constraint("Parallel", 2, 5),
    Sketcher.Constraint("Parallel", 4, 6),
    Sketcher.Constraint("Parallel", 5, 7),
    Sketcher.Constraint("Parallel", 6, 9),
    Sketcher.Constraint("Parallel", 7, 10),
    Sketcher.Constraint("Horizontal", 0, 2, 2, 2),
    Sketcher.Constraint("Horizontal", 3, 2, 5, 2),
    Sketcher.Constraint("Horizontal", 1, 2, 6, 2),
    Sketcher.Constraint("Horizontal", 2, 2, 7, 2),
    Sketcher.Constraint("Horizontal", 5, 2, 8, 2),
    Sketcher.Constraint("Horizontal", 4, 2, 9, 2),
    Sketcher.Constraint("Horizontal", 8, 2, 10, 2),
    Sketcher.Constraint("Vertical", 1, 2, 4, 2),
    Sketcher.Constraint("Angle", 1, Q("150 deg")),
    Sketcher.Constraint("DistanceX", -1, 1, 1, 2, 10.0),
    Sketcher.Constraint("DistanceX", 6, 2, -1, 1, 16.0),
    Sketcher.Constraint("DistanceX", 2, 2, 0, 2, 6.5),
    Sketcher.Constraint("DistanceY", 0, 1, 0, 2, 3.752777),
    Sketcher.Constraint("DistanceY", 0, 2, -1, 1, 25.453612),
])
pocket10 = doc.addObject("PartDesign::Pocket", "Pocket009")
body.addObject(pocket10)
pocket10.Profile = sketch17
pocket10.setExpression("Length", "Params.pocket10_length")
doc.recompute()

fillet2 = doc.addObject("PartDesign::Fillet", "Fillet001")
body.addObject(fillet2)
fillet2.Base = (pocket10, edges_at(pocket10, [
    (-29.5, 1.11, -18),
    (-29.5, -22.89, -34),
    (-39.5, 1.11, -18),
    (-39.5, 25.11, -34),
    (-34.5, 25.11, -18),
    (-29.5, 25.11, -34),
    (-34.5, -22.89, -18),
    (-39.5, -22.89, -34),
]))
fillet2.setExpression("Radius", "Params.fillet2_radius")

# Sketch on XY plane
sketch18 = doc.addObject("Sketcher::SketchObject", "Sketch017")
body.addObject(sketch18)
sketch18.AttachmentSupport = (doc.XY_Plane, [""])
sketch18.MapMode = "FlatFace"
sketch18.AttachmentOffset = App.Placement(App.Vector(0, 0, -50), App.Rotation())
add_polygon(sketch18, [(-17, 34), (-17, -32), (-52, -32), (-52, 34)])  # lines 0-3
sketch18.addConstraint([
    Sketcher.Constraint("Vertical", 0),
    Sketcher.Constraint("Horizontal", 1),
    Sketcher.Constraint("Vertical", 2),
    Sketcher.Constraint("Horizontal", 3),
    Sketcher.Constraint("DistanceX", 1, 2, 1, 1, 35.0),
    Sketcher.Constraint("DistanceY", 0, 2, 0, 1, 66.0),
    Sketcher.Constraint("DistanceX", 0, 2, -1, 1, 17.0),
    Sketcher.Constraint("DistanceY", 0, 2, -1, 1, 31.89),
])
sketch18.setExpression("Constraints[8]", "Params.sketch18_width")
sketch18.setExpression("Constraints[9]", "Params.sketch18_height")
pocket11 = doc.addObject("PartDesign::Pocket", "Pocket010")
body.addObject(pocket11)
pocket11.Profile = sketch18
pocket11.setExpression("Length", "Params.pocket11_length")
pocket11.Reversed = True

# Sketch on XY plane
sketch19 = doc.addObject("Sketcher::SketchObject", "Sketch018")
body.addObject(sketch19)
sketch19.AttachmentSupport = (doc.XY_Plane, [""])
sketch19.MapMode = "FlatFace"
sketch19.AttachmentOffset = App.Placement(App.Vector(0, 0, -41), App.Rotation())
sketch19.addGeometry([
    Part.Circle(App.Vector(-34.5, 28.1, 0), App.Vector(0, 0, 1), 2),
    Part.Circle(App.Vector(-45, 1.1, 0), App.Vector(0, 0, 1), 2),
    Part.Circle(App.Vector(-24, 1.1, 0), App.Vector(0, 0, 1), 2),
    Part.Circle(App.Vector(-34.5, -25.9, 0), App.Vector(0, 0, 1), 2),
], False)
sketch19.addConstraint([
    Sketcher.Constraint("Equal", 0, 1),
    Sketcher.Constraint("Equal", 1, 2),
    Sketcher.Constraint("Equal", 2, 3),
    Sketcher.Constraint("Horizontal", 1, 3, 2, 3),
    Sketcher.Constraint("Vertical", 0, 3, 3, 3),
    Sketcher.Constraint("Diameter", 0, 4.0),
    Sketcher.Constraint("DistanceX", 1, 3, -1, 1, 45.0),
    Sketcher.Constraint("DistanceX", 2, 3, -1, 1, 24.0),
    Sketcher.Constraint("DistanceY", 1, 3, 0, 3, 27.0),
    Sketcher.Constraint("DistanceY", 3, 3, 1, 3, 27.0),
    Sketcher.Constraint("DistanceX", 0, 3, -1, 1, 34.5),
    Sketcher.Constraint("DistanceY", -1, 1, 0, 3, 28.11),
])
sketch19.setExpression("Constraints[5]", "Params.sketch19_diameter")
pocket12 = doc.addObject("PartDesign::Pocket", "Pocket011")
body.addObject(pocket12)
pocket12.Profile = sketch19
pocket12.setExpression("Length", "Params.pocket12_length")
pocket12.Reversed = True

doc.recompute()
